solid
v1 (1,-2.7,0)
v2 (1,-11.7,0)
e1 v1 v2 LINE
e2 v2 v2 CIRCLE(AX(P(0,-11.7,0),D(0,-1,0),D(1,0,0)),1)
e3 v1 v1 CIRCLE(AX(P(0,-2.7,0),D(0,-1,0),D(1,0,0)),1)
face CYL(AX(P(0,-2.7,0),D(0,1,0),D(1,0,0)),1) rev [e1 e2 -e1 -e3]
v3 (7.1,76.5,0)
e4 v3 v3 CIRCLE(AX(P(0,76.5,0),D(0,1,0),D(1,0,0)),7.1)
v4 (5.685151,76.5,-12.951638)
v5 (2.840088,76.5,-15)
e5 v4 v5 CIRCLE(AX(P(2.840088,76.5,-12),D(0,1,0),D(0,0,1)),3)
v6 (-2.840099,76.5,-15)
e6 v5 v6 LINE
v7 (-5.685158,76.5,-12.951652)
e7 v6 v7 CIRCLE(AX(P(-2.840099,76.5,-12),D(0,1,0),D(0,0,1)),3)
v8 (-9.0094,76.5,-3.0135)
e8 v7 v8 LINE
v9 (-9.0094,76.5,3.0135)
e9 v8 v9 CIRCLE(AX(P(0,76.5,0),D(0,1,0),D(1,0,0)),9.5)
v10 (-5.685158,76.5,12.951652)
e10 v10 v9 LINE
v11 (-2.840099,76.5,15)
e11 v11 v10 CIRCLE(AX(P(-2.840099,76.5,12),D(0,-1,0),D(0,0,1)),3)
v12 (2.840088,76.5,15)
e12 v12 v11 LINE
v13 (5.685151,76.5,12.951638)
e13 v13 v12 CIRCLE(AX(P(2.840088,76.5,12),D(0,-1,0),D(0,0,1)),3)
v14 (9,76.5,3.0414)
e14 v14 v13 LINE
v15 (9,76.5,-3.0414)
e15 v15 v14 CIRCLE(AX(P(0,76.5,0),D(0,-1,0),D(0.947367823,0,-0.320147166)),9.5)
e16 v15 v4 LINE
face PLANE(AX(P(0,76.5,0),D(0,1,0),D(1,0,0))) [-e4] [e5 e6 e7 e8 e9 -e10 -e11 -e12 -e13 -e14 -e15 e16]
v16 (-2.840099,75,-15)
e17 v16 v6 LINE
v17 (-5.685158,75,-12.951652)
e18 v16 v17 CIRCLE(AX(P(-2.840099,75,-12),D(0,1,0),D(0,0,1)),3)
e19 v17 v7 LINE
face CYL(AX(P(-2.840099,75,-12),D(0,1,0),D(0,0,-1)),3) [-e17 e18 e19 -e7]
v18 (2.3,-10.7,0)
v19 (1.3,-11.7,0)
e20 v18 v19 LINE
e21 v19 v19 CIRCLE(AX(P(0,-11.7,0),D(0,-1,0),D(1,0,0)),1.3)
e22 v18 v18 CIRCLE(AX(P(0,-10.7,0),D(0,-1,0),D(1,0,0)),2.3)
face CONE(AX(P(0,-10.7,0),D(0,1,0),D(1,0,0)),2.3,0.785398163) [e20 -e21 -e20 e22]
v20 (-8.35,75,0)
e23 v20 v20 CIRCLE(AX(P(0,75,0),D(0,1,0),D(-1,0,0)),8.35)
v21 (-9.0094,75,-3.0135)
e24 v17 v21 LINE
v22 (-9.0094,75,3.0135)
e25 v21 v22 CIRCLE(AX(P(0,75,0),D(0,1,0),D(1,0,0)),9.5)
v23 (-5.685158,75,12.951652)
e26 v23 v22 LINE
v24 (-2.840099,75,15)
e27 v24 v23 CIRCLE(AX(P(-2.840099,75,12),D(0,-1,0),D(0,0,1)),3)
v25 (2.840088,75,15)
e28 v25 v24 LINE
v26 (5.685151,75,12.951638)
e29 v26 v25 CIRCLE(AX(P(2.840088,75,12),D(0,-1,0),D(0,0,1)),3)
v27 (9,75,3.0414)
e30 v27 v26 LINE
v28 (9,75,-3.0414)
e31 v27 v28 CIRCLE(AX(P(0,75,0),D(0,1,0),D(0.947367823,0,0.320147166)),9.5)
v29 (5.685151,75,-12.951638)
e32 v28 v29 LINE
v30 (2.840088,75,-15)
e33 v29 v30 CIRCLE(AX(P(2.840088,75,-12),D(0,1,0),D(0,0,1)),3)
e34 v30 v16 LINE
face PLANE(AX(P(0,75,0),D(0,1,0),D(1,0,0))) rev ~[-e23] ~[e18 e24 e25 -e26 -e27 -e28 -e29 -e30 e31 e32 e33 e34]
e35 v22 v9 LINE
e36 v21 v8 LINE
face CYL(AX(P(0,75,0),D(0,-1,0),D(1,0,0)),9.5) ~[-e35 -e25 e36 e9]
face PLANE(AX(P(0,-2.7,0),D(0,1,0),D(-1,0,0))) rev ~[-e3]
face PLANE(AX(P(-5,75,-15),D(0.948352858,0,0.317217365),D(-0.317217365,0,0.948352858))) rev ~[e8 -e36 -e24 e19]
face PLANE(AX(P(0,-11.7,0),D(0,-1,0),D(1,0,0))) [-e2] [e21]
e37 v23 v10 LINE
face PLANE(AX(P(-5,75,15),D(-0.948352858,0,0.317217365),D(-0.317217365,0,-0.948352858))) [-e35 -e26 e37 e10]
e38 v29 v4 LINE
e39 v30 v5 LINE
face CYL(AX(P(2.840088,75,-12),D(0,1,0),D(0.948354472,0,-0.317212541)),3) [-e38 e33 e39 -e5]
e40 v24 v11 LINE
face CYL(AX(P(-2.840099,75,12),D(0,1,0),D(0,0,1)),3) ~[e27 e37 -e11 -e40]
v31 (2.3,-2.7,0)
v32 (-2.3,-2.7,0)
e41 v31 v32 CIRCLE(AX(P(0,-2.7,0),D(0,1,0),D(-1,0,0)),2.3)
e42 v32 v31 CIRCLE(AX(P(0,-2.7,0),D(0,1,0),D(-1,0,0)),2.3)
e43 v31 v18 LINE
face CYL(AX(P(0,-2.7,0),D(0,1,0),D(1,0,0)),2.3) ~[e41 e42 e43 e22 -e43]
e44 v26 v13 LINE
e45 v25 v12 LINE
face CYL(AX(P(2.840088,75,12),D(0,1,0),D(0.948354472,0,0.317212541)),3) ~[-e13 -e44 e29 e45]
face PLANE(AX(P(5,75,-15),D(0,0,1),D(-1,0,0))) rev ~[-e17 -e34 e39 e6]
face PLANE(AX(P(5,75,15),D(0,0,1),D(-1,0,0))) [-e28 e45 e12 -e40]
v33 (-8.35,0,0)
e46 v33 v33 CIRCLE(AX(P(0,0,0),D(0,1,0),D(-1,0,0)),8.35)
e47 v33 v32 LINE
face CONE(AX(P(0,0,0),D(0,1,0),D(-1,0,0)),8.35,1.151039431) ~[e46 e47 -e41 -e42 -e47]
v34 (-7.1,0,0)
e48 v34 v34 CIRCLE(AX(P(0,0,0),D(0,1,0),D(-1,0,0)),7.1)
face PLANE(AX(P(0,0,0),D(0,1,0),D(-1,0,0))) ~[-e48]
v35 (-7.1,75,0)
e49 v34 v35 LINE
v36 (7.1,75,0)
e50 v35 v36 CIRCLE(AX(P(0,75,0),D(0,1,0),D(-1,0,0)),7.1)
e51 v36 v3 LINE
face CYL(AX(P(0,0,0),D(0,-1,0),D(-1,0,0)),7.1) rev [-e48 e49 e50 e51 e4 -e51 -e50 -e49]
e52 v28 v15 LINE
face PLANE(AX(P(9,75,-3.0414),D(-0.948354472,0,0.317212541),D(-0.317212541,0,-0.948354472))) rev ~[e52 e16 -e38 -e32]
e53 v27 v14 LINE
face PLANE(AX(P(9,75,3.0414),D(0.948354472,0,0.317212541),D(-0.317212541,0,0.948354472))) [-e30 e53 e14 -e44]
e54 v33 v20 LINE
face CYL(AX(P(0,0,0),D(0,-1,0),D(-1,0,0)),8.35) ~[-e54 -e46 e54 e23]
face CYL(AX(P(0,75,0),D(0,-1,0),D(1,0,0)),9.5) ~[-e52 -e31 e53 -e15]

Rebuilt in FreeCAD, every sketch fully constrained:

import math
import FreeCAD as App
import Part
import Sketcher

V = App.Vector


def edges_at(feature, points):
    """Names of the edges that pass closest to the given points."""
    edges = feature.Shape.Edges
    near = lambda p: min(range(len(edges)), key=lambda i: edges[i].distToShape(Part.Vertex(*p))[0])
    return sorted({f"Edge{near(p) + 1}" for p in points})


def add_polygon(sketch, points):
    """Adds a closed chain of lines whose ends are joined by coincident constraints."""
    first, n = sketch.GeometryCount, len(points)
    for a, b in zip(points, points[1:] + points[:1]):
        sketch.addGeometry(Part.LineSegment(App.Vector(*a, 0), App.Vector(*b, 0)), False)
    for i in range(n):
        sketch.addConstraint(Sketcher.Constraint("Coincident", first + i, 2, first + (i + 1) % n, 1))

doc = App.newDocument("Part")
body = doc.addObject("PartDesign::Body", "Body")

sketch1 = body.newObject("Sketcher::SketchObject", "Sketch")
sketch1.AttachmentSupport = (doc.getObject("XZ_Plane"), [""])
sketch1.MapMode = "FlatFace"
sketch1.addGeometry(Part.Circle(V(0, 0, 0), V(0, 0, 1), 8), False)
sketch1.addGeometry(Part.Circle(V(0, 0, 0), V(0, 0, 1), 7), False)
sketch1.addConstraint(Sketcher.Constraint("Coincident", 0, 3, -1, 1))
sketch1.addConstraint(Sketcher.Constraint("Coincident", 1, 3, -1, 1))
sketch1.addConstraint(Sketcher.Constraint("Diameter", 0, 16.7))
sketch1.addConstraint(Sketcher.Constraint("Diameter", 1, 14.2))
pad1 = body.newObject("PartDesign::Pad", "Pad")
pad1.Profile = sketch1
pad1.Length = 75
pad1.Reversed = True

sketch2 = body.newObject("Sketcher::SketchObject", "Sketch001")
sketch2.AttachmentSupport = (doc.getObject("XZ_Plane"), [""])
sketch2.MapMode = "FlatFace"
sketch2.AttachmentOffset = App.Placement(V(0, 0, -75), App.Rotation())
sketch2.addGeometry(Part.ArcOfCircle(Part.Circle(V(0, 0, 0), V(0, 0, 1), 9.5), math.radians(-18.671825), math.radians(18.671825)), False)
sketch2.addGeometry(Part.LineSegment(V(9, -3.0414, 0), V(5, -15, 0)), False)
sketch2.addGeometry(Part.LineSegment(V(5, -15, 0), V(-5, -15, 0)), False)
sketch2.addGeometry(Part.LineSegment(V(-5, -15, 0), V(-9.0094, -3.0135, 0)), False)
sketch2.addGeometry(Part.ArcOfCircle(Part.Circle(V(0, 0, 0), V(0, 0, 1), 9.5), math.radians(161.505737), math.radians(198.494263)), False)
sketch2.addGeometry(Part.LineSegment(V(-9.0094, 3.0135, 0), V(-5, 15, 0)), False)
sketch2.addGeometry(Part.LineSegment(V(-5, 15, 0), V(5, 15, 0)), False)
sketch2.addGeometry(Part.LineSegment(V(5, 15, 0), V(9, 3.0414, 0)), False)
sketch2.addGeometry(Part.Circle(V(0, 0, 0), V(0, 0, 1), 7.1), False)
sketch2.addConstraint(Sketcher.Constraint("Coincident", 0, 1, 1, 1))
sketch2.addConstraint(Sketcher.Constraint("Coincident", 1, 2, 2, 1))
sketch2.addConstraint(Sketcher.Constraint("Coincident", 2, 2, 3, 1))
sketch2.addConstraint(Sketcher.Constraint("Coincident", 3, 2, 4, 2))
sketch2.addConstraint(Sketcher.Constraint("Coincident", 4, 1, 5, 1))
sketch2.addConstraint(Sketcher.Constraint("Coincident", 5, 2, 6, 1))
sketch2.addConstraint(Sketcher.Constraint("Coincident", 6, 2, 7, 1))
sketch2.addConstraint(Sketcher.Constraint("Coincident", 7, 2, 0, 2))
sketch2.addConstraint(Sketcher.Constraint("Horizontal", 2))
sketch2.addConstraint(Sketcher.Constraint("Horizontal", 6))
sketch2.addConstraint(Sketcher.Constraint("Coincident", 0, 3, -1, 1))
sketch2.addConstraint(Sketcher.Constraint("Coincident", 4, 3, -1, 1))
sketch2.addConstraint(Sketcher.Constraint("Coincident", 8, 3, -1, 1))
sketch2.addConstraint(Sketcher.Constraint("Diameter", 8, 14.2))
sketch2.addConstraint(Sketcher.Constraint("Radius", 0, 9.5))
sketch2.addConstraint(Sketcher.Constraint("Radius", 4, 9.5))
sketch2.addConstraint(Sketcher.Constraint("DistanceX", -1, 1, 1, 2, 5.0))
sketch2.addConstraint(Sketcher.Constraint("DistanceX", 2, 2, -1, 1, 5.0))
sketch2.addConstraint(Sketcher.Constraint("DistanceX", 5, 2, -1, 1, 5.0))
sketch2.addConstraint(Sketcher.Constraint("DistanceX", -1, 1, 6, 2, 5.0))
sketch2.addConstraint(Sketcher.Constraint("DistanceX", -1, 1, 0, 1, 9.0))
sketch2.addConstraint(Sketcher.Constraint("DistanceY", 1, 2, -1, 1, 15.0))
sketch2.addConstraint(Sketcher.Constraint("DistanceY", -1, 1, 5, 2, 15.0))
sketch2.addConstraint(Sketcher.Constraint("DistanceX", -1, 1, 7, 2, 9.0))
sketch2.addConstraint(Sketcher.Constraint("DistanceY", 0, 1, 3, 2, 0.028))
sketch2.addConstraint(Sketcher.Constraint("DistanceY", 3, 2, 4, 1, 6.027))
pad2 = body.newObject("PartDesign::Pad", "Pad001")
pad2.Profile = sketch2
pad2.Length = 1.5
pad2.Reversed = True

sketch3 = body.newObject("Sketcher::SketchObject", "Sketch002")
sketch3.AttachmentSupport = (doc.getObject("XY_Plane"), [""])
sketch3.MapMode = "FlatFace"
add_polygon(sketch3, [(0, -2.7), (0, 0), (-8.3, 0), (-2.3, -2.7)])
sketch3.addConstraint(Sketcher.Constraint("Vertical", 0))
sketch3.addConstraint(Sketcher.Constraint("Horizontal", 1))
sketch3.addConstraint(Sketcher.Constraint("Horizontal", 3))
sketch3.addConstraint(Sketcher.Constraint("Coincident", 0, 2, -1, 1))
sketch3.addConstraint(Sketcher.Constraint("DistanceX", 3, 1, 3, 2, 2.3))
sketch3.addConstraint(Sketcher.Constraint("DistanceY", 0, 1, 0, 2, 2.7))
sketch3.addConstraint(Sketcher.Constraint("DistanceX", 1, 2, 1, 1, 8.35))
revolution = body.newObject("PartDesign::Revolution", "Revolution")
revolution.Profile = sketch3
revolution.ReferenceAxis = (sketch3, ["V_Axis"])
revolution.Angle = 360

sketch4 = body.newObject("Sketcher::SketchObject", "Sketch003")
sketch4.AttachmentSupport = (doc.getObject("XZ_Plane"), [""])
sketch4.MapMode = "FlatFace"
sketch4.AttachmentOffset = App.Placement(V(0, 0, 2.7), App.Rotation())
sketch4.addGeometry(Part.Circle(V(0, 0, 0), V(0, 0, 1), 2.3), False)
sketch4.addGeometry(Part.Circle(V(0, 0, 0), V(0, 0, 1), 1), False)
sketch4.addConstraint(Sketcher.Constraint("Coincident", 0, 3, -1, 1))
sketch4.addConstraint(Sketcher.Constraint("Coincident", 1, 3, -1, 1))
sketch4.addConstraint(Sketcher.Constraint("Diameter", 1, 2.0))
sketch4.addConstraint(Sketcher.Constraint("Diameter", 0, 4.6))
pad3 = body.newObject("PartDesign::Pad", "Pad002")
pad3.Profile = sketch4
pad3.Length = 9
doc.recompute()

chamfer = body.newObject("PartDesign::Chamfer", "Chamfer")
chamfer.Base = (pad3, edges_at(pad3, [(-2.3, -11.7, 0)]))
chamfer.Size = 1
doc.recompute()

fillet = body.newObject("PartDesign::Fillet", "Fillet")
fillet.Base = (chamfer, edges_at(chamfer, [
    (5, 75.75, -15),
    (5, 75.75, 15),
    (-5, 75.75, -15),
    (-5, 75.75, 15),
]))
fillet.Radius = 3

doc.recompute()
